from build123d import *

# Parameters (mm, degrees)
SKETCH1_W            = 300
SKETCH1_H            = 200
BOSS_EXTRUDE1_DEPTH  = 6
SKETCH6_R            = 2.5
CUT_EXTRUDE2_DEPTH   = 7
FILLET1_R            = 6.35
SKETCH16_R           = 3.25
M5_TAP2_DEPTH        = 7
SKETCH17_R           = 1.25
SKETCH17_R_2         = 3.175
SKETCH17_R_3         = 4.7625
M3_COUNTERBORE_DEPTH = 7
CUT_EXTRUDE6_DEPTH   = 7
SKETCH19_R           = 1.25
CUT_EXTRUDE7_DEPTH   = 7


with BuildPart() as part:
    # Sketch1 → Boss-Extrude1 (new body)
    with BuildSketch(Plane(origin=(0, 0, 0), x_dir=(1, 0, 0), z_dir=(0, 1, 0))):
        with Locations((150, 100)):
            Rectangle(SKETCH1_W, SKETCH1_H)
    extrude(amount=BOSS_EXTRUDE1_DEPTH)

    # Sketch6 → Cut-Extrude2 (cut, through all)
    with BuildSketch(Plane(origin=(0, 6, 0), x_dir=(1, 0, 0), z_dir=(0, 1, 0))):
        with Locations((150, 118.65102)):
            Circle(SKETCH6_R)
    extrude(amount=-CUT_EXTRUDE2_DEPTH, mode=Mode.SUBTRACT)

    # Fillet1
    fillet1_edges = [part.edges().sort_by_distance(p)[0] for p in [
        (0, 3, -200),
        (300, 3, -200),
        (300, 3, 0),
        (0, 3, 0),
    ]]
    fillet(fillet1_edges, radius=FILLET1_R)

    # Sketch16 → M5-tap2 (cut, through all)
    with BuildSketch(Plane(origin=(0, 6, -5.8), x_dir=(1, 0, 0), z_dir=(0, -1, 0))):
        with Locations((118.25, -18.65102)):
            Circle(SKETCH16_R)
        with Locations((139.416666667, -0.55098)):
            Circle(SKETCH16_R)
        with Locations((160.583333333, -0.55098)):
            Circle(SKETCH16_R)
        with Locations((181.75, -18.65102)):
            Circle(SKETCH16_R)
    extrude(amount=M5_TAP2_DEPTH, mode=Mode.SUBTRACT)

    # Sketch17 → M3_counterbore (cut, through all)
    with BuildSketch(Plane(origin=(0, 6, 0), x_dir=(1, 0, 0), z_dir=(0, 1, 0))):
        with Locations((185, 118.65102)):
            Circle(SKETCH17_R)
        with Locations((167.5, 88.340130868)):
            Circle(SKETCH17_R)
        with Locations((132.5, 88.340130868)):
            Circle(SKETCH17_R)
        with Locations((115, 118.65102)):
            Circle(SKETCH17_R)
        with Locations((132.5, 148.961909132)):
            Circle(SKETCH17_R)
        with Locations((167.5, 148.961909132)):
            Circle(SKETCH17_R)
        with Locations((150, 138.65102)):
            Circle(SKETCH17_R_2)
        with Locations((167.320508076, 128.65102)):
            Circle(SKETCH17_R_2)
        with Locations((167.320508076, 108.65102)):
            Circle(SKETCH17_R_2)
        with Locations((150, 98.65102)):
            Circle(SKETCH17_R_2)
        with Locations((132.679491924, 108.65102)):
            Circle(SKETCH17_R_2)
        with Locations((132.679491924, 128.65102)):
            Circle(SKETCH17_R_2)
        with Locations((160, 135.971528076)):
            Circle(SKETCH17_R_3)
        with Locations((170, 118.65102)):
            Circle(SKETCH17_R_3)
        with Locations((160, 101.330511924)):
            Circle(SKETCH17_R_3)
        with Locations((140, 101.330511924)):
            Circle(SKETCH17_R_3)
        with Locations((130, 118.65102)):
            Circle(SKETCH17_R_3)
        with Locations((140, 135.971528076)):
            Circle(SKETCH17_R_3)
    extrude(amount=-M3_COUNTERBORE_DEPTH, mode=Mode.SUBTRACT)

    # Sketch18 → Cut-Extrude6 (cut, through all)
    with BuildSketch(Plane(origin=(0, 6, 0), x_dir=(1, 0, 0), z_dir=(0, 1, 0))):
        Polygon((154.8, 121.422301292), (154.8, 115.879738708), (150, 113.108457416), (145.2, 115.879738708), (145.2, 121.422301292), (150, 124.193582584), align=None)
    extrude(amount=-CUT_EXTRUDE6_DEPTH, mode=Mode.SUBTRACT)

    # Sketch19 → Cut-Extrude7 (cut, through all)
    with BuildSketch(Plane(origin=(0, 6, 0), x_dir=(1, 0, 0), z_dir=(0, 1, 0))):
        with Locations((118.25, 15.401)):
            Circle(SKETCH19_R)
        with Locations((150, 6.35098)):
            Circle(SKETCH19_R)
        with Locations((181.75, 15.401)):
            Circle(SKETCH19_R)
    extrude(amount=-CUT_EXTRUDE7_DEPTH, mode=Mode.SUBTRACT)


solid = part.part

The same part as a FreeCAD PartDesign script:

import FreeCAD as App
import Part
import Sketcher
from FreeCAD import Vector
Q = App.Units.Quantity


def edges_at(feature, points):
    """Names of the edges that pass closest to the given points."""
    edges = feature.Shape.Edges
    near = lambda p: min(range(len(edges)), key=lambda i: edges[i].distToShape(Part.Vertex(*p))[0])
    return sorted({f"Edge{near(p) + 1}" for p in points})


def add_polygon(sketch, points):
    """Adds a closed chain of lines whose ends are joined by coincident constraints."""
    first, n = sketch.GeometryCount, len(points)
    for a, b in zip(points, points[1:] + points[:1]):
        sketch.addGeometry(Part.LineSegment(App.Vector(*a, 0), App.Vector(*b, 0)), False)
    for i in range(n):
        sketch.addConstraint(Sketcher.Constraint("Coincident", first + i, 2, first + (i + 1) % n, 1))

doc = App.newDocument("Part")
body = doc.addObject("PartDesign::Body", "Body")

sketch1 = body.newObject("Sketcher::SketchObject", "Sketch")
sketch1.AttachmentSupport = (doc.getObject("XZ_Plane"), [""])
sketch1.MapMode = "FlatFace"
add_polygon(sketch1, [(0, -200), (0, 0), (300, 0), (300, -200)])
sketch1.addConstraint(Sketcher.Constraint("Vertical", 0))
sketch1.addConstraint(Sketcher.Constraint("Horizontal", 1))
sketch1.addConstraint(Sketcher.Constraint("Vertical", 2))
sketch1.addConstraint(Sketcher.Constraint("Horizontal", 3))
sketch1.addConstraint(Sketcher.Constraint("Coincident", 0, 2, -1, 1))
sketch1.addConstraint(Sketcher.Constraint("DistanceX", 1, 1, 1, 2, Q("300 mm")))
sketch1.addConstraint(Sketcher.Constraint("DistanceY", 0, 1, 0, 2, Q("200 mm")))
pad1 = body.newObject("PartDesign::Pad", "Pad")
pad1.Profile = sketch1
pad1.Length = 6
pad1.Reversed = True

sketch2 = body.newObject("Sketcher::SketchObject", "Sketch001")
sketch2.AttachmentSupport = (doc.getObject("XZ_Plane"), [""])
sketch2.MapMode = "FlatFace"
sketch2.AttachmentOffset = App.Placement(Vector(0, 0, -6), App.Rotation())
sketch2.addGeometry(Part.Circle(Vector(150, -118.7, 0), Vector(0, 0, 1), 2.5), False)
sketch2.addConstraint(Sketcher.Constraint("Diameter", 0, Q("5 mm")))
sketch2.addConstraint(Sketcher.Constraint("DistanceX", -1, 1, 0, 3, Q("150 mm")))
sketch2.addConstraint(Sketcher.Constraint("DistanceY", 0, 3, -1, 1, Q("118.65102 mm")))
pocket1 = body.newObject("PartDesign::Pocket", "Pocket")
pocket1.Profile = sketch2
pocket1.Type = "ThroughAll"
pocket1.Reversed = True
doc.recompute()

fillet = body.newObject("PartDesign::Fillet", "Fillet")
fillet.Base = (pocket1, edges_at(pocket1, [
    (0, 3, -200),
    (300, 3, -200),
    (300, 3, 0),
    (0, 3, 0),
]))
fillet.Radius = 6.35

sketch3 = body.newObject("Sketcher::SketchObject", "Sketch002")
sketch3.AttachmentSupport = (doc.getObject("XZ_Plane"), [""])
sketch3.MapMode = "FlatFace"
sketch3.AttachmentOffset = App.Placement(Vector(0, 0, -6), App.Rotation())
sketch3.addGeometry(Part.Circle(Vector(118.2, -24.5, 0), Vector(0, 0, 1), 3.2), False)
sketch3.addGeometry(Part.Circle(Vector(139.4, -6.4, 0), Vector(0, 0, 1), 3.2), False)
sketch3.addGeometry(Part.Circle(Vector(160.6, -6.4, 0), Vector(0, 0, 1), 3.2), False)
sketch3.addGeometry(Part.Circle(Vector(181.8, -24.5, 0), Vector(0, 0, 1), 3.2), False)
sketch3.addConstraint(Sketcher.Constraint("Equal", 0, 1))
sketch3.addConstraint(Sketcher.Constraint("Equal", 1, 2))
sketch3.addConstraint(Sketcher.Constraint("Equal", 2, 3))
sketch3.addConstraint(Sketcher.Constraint("Horizontal", 1, 3, 2, 3))
sketch3.addConstraint(Sketcher.Constraint("Horizontal", 0, 3, 3, 3))
sketch3.addConstraint(Sketcher.Constraint("Diameter", 0, Q("6.5 mm")))
sketch3.addConstraint(Sketcher.Constraint("DistanceX", 0, 3, 3, 3, Q("63.5 mm")))
sketch3.addConstraint(Sketcher.Constraint("DistanceX", -1, 1, 0, 3, Q("118.25 mm")))
sketch3.addConstraint(Sketcher.Constraint("DistanceY", 0, 3, -1, 1, Q("24.45102 mm")))
sketch3.addConstraint(Sketcher.Constraint("DistanceY", 1, 3, -1, 1, Q("6.35098 mm")))
sketch3.addConstraint(Sketcher.Constraint("DistanceX", -1, 1, 1, 3, Q("139.416667 mm")))
sketch3.addConstraint(Sketcher.Constraint("DistanceX", -1, 1, 2, 3, Q("160.583333 mm")))
pocket2 = body.newObject("PartDesign::Pocket", "Pocket001")
pocket2.Profile = sketch3
pocket2.Type = "ThroughAll"
pocket2.Reversed = True

sketch4 = body.newObject("Sketcher::SketchObject", "Sketch003")
sketch4.AttachmentSupport = (doc.getObject("XZ_Plane"), [""])
sketch4.MapMode = "FlatFace"
sketch4.AttachmentOffset = App.Placement(Vector(0, 0, -6), App.Rotation())
sketch4.addGeometry(Part.Circle(Vector(185, -118.7, 0), Vector(0, 0, 1), 1.2), False)
sketch4.addGeometry(Part.Circle(Vector(167.5, -88.3, 0), Vector(0, 0, 1), 1.2), False)
sketch4.addGeometry(Part.Circle(Vector(132.5, -88.3, 0), Vector(0, 0, 1), 1.2), False)
sketch4.addGeometry(Part.Circle(Vector(115, -118.7, 0), Vector(0, 0, 1), 1.2), False)
sketch4.addGeometry(Part.Circle(Vector(132.5, -149, 0), Vector(0, 0, 1), 1.2), False)
sketch4.addGeometry(Part.Circle(Vector(167.5, -149, 0), Vector(0, 0, 1), 1.2), False)
sketch4.addGeometry(Part.Circle(Vector(150, -138.7, 0), Vector(0, 0, 1), 3.2), False)
sketch4.addGeometry(Part.Circle(Vector(167.3, -128.7, 0), Vector(0, 0, 1), 3.2), False)
sketch4.addGeometry(Part.Circle(Vector(167.3, -108.7, 0), Vector(0, 0, 1), 3.2), False)
sketch4.addGeometry(Part.Circle(Vector(150, -98.7, 0), Vector(0, 0, 1), 3.2), False)
sketch4.addGeometry(Part.Circle(Vector(132.7, -108.7, 0), Vector(0, 0, 1), 3.2), False)
sketch4.addGeometry(Part.Circle(Vector(132.7, -128.7, 0), Vector(0, 0, 1), 3.2), False)
sketch4.addGeometry(Part.Circle(Vector(160, -136, 0), Vector(0, 0, 1), 4.8), False)
sketch4.addGeometry(Part.Circle(Vector(170, -118.7, 0), Vector(0, 0, 1), 4.8), False)
sketch4.addGeometry(Part.Circle(Vector(160, -101.3, 0), Vector(0, 0, 1), 4.8), False)
sketch4.addGeometry(Part.Circle(Vector(140, -101.3, 0), Vector(0, 0, 1), 4.8), False)
sketch4.addGeometry(Part.Circle(Vector(130, -118.7, 0), Vector(0, 0, 1), 4.8), False)
sketch4.addGeometry(Part.Circle(Vector(140, -136, 0), Vector(0, 0, 1), 4.8), False)
sketch4.addConstraint(Sketcher.Constraint("Equal", 0, 1))
sketch4.addConstraint(Sketcher.Constraint("Equal", 1, 2))
sketch4.addConstraint(Sketcher.Constraint("Equal", 2, 3))
sketch4.addConstraint(Sketcher.Constraint("Equal", 3, 4))
sketch4.addConstraint(Sketcher.Constraint("Equal", 4, 5))
sketch4.addConstraint(Sketcher.Constraint("Equal", 6, 7))
sketch4.addConstraint(Sketcher.Constraint("Equal", 7, 8))
sketch4.addConstraint(Sketcher.Constraint("Equal", 8, 9))
sketch4.addConstraint(Sketcher.Constraint("Equal", 9, 10))
sketch4.addConstraint(Sketcher.Constraint("Equal", 10, 11))
sketch4.addConstraint(Sketcher.Constraint("Equal", 12, 13))
sketch4.addConstraint(Sketcher.Constraint("Equal", 13, 14))
sketch4.addConstraint(Sketcher.Constraint("Equal", 14, 15))
sketch4.addConstraint(Sketcher.Constraint("Equal", 15, 16))
sketch4.addConstraint(Sketcher.Constraint("Equal", 16, 17))
sketch4.addConstraint(Sketcher.Constraint("Horizontal", 1, 3, 2, 3))
sketch4.addConstraint(Sketcher.Constraint("Horizontal", 0, 3, 3, 3))
sketch4.addConstraint(Sketcher.Constraint("Horizontal", 4, 3, 5, 3))
sketch4.addConstraint(Sketcher.Constraint("Horizontal", 8, 3, 10, 3))
sketch4.addConstraint(Sketcher.Constraint("Horizontal", 7, 3, 11, 3))
sketch4.addConstraint(Sketcher.Constraint("Horizontal", 3, 3, 13, 3))
sketch4.addConstraint(Sketcher.Constraint("Horizontal", 14, 3, 15, 3))
sketch4.addConstraint(Sketcher.Constraint("Horizontal", 13, 3, 16, 3))
sketch4.addConstraint(Sketcher.Constraint("Horizontal", 12, 3, 17, 3))
sketch4.addConstraint(Sketcher.Constraint("Vertical", 2, 3, 4, 3))
sketch4.addConstraint(Sketcher.Constraint("Vertical", 1, 3, 5, 3))
sketch4.addConstraint(Sketcher.Constraint("Vertical", 7, 3, 8, 3))
sketch4.addConstraint(Sketcher.Constraint("Vertical", 6, 3, 9, 3))
sketch4.addConstraint(Sketcher.Constraint("Vertical", 10, 3, 11, 3))
sketch4.addConstraint(Sketcher.Constraint("Vertical", 12, 3, 14, 3))
sketch4.addConstraint(Sketcher.Constraint("Vertical", 15, 3, 17, 3))
sketch4.addConstraint(Sketcher.Constraint("Diameter", 0, Q("2.5 mm")))
sketch4.addConstraint(Sketcher.Constraint("Diameter", 6, Q("6.35 mm")))
sketch4.addConstraint(Sketcher.Constraint("Diameter", 12, Q("9.525 mm")))
sketch4.addConstraint(Sketcher.Constraint("DistanceX", -1, 1, 0, 3, Q("185 mm")))
sketch4.addConstraint(Sketcher.Constraint("DistanceX", -1, 1, 3, 3, Q("115 mm")))
sketch4.addConstraint(Sketcher.Constraint("DistanceX", -1, 1, 6, 3, Q("150 mm")))
sketch4.addConstraint(Sketcher.Constraint("DistanceX", -1, 1, 12, 3, Q("160 mm")))
sketch4.addConstraint(Sketcher.Constraint("DistanceX", -1, 1, 13, 3, Q("170 mm")))
sketch4.addConstraint(Sketcher.Constraint("DistanceX", -1, 1, 15, 3, Q("140 mm")))
sketch4.addConstraint(Sketcher.Constraint("DistanceX", -1, 1, 16, 3, Q("130 mm")))
sketch4.addConstraint(Sketcher.Constraint("DistanceX", 2, 3, 1, 3, Q("35 mm")))
sketch4.addConstraint(Sketcher.Constraint("DistanceY", 6, 3, 0, 3, Q("20 mm")))
sketch4.addConstraint(Sketcher.Constraint("DistanceY", 6, 3, 7, 3, Q("10 mm")))
sketch4.addConstraint(Sketcher.Constraint("DistanceY", 7, 3, 8, 3, Q("20 mm")))
sketch4.addConstraint(Sketcher.Constraint("DistanceY", 8, 3, 9, 3, Q("10 mm")))
sketch4.addConstraint(Sketcher.Constraint("DistanceX", -1, 1, 1, 3, Q("167.5 mm")))
sketch4.addConstraint(Sketcher.Constraint("DistanceY", 0, 3, -1, 1, Q("118.65102 mm")))
sketch4.addConstraint(Sketcher.Constraint("DistanceY", 1, 3, -1, 1, Q("88.340131 mm")))
sketch4.addConstraint(Sketcher.Constraint("DistanceY", 4, 3, -1, 1, Q("148.961909 mm")))
sketch4.addConstraint(Sketcher.Constraint("DistanceX", -1, 1, 7, 3, Q("167.320508 mm")))
sketch4.addConstraint(Sketcher.Constraint("DistanceX", -1, 1, 10, 3, Q("132.679492 mm")))
sketch4.addConstraint(Sketcher.Constraint("DistanceY", 12, 3, -1, 1, Q("135.971528 mm")))
sketch4.addConstraint(Sketcher.Constraint("DistanceY", 14, 3, -1, 1, Q("101.330512 mm")))
pocket3 = body.newObject("PartDesign::Pocket", "Pocket002")
pocket3.Profile = sketch4
pocket3.Type = "ThroughAll"
pocket3.Reversed = True

sketch5 = body.newObject("Sketcher::SketchObject", "Sketch004")
sketch5.AttachmentSupport = (doc.getObject("XZ_Plane"), [""])
sketch5.MapMode = "FlatFace"
sketch5.AttachmentOffset = App.Placement(Vector(0, 0, -6), App.Rotation())
add_polygon(sketch5, [(155, -116), (155, -121), (150, -124), (145, -121), (145, -116), (150, -113)])
sketch5.addConstraint(Sketcher.Constraint("Vertical", 0))
sketch5.addConstraint(Sketcher.Constraint("Vertical", 3))
sketch5.addConstraint(Sketcher.Constraint("Parallel", 1, 4))
sketch5.addConstraint(Sketcher.Constraint("Parallel", 2, 5))
sketch5.addConstraint(Sketcher.Constraint("Horizontal", 0, 2, 2, 2))
sketch5.addConstraint(Sketcher.Constraint("Horizontal", 3, 2, 5, 2))
sketch5.addConstraint(Sketcher.Constraint("Vertical", 1, 2, 4, 2))
sketch5.addConstraint(Sketcher.Constraint("Angle", 1, Q("-150 deg")))
sketch5.addConstraint(Sketcher.Constraint("DistanceX", -1, 1, 1, 2, Q("150 mm")))
sketch5.addConstraint(Sketcher.Constraint("DistanceX", -1, 1, 0, 2, Q("154.8 mm")))
sketch5.addConstraint(Sketcher.Constraint("DistanceY", 0, 2, -1, 1, Q("121.422301 mm")))
sketch5.addConstraint(Sketcher.Constraint("DistanceY", 0, 2, 0, 1, Q("5.542563 mm")))
pocket4 = body.newObject("PartDesign::Pocket", "Pocket003")
pocket4.Profile = sketch5
pocket4.Type = "ThroughAll"
pocket4.Reversed = True

sketch6 = body.newObject("Sketcher::SketchObject", "Sketch005")
sketch6.AttachmentSupport = (doc.getObject("XZ_Plane"), [""])
sketch6.MapMode = "FlatFace"
sketch6.AttachmentOffset = App.Placement(Vector(0, 0, -6), App.Rotation())
sketch6.addGeometry(Part.Circle(Vector(118.2, -15.4, 0), Vector(0, 0, 1), 1.2), False)
sketch6.addGeometry(Part.Circle(Vector(150, -6.4, 0), Vector(0, 0, 1), 1.2), False)
sketch6.addGeometry(Part.Circle(Vector(181.8, -15.4, 0), Vector(0, 0, 1), 1.2), False)
sketch6.addConstraint(Sketcher.Constraint("Equal", 0, 1))
sketch6.addConstraint(Sketcher.Constraint("Equal", 1, 2))
sketch6.addConstraint(Sketcher.Constraint("Horizontal", 0, 3, 2, 3))
sketch6.addConstraint(Sketcher.Constraint("Diameter", 0, Q("2.5 mm")))
sketch6.addConstraint(Sketcher.Constraint("DistanceX", -1, 1, 1, 3, Q("150 mm")))
sketch6.addConstraint(Sketcher.Constraint("DistanceX", 0, 3, 2, 3, Q("63.5 mm")))
sketch6.addConstraint(Sketcher.Constraint("DistanceX", -1, 1, 0, 3, Q("118.25 mm")))
sketch6.addConstraint(Sketcher.Constraint("DistanceY", 0, 3, -1, 1, Q("15.401 mm")))
sketch6.addConstraint(Sketcher.Constraint("DistanceY", 1, 3, -1, 1, Q("6.35098 mm")))
pocket5 = body.newObject("PartDesign::Pocket", "Pocket004")
pocket5.Profile = sketch6
pocket5.Type = "ThroughAll"
pocket5.Reversed = True

doc.recompute()
